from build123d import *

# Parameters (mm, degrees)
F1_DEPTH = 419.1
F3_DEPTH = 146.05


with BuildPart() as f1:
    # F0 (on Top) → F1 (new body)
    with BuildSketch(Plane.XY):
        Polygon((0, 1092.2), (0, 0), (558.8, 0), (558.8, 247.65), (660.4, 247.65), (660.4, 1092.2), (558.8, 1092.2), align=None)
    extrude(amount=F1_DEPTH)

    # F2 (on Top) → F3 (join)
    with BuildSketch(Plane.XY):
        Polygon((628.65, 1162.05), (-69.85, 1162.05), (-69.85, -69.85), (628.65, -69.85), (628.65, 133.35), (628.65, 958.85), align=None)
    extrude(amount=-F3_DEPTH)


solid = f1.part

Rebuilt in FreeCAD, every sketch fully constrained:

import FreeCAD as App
import Part
import Sketcher
from FreeCAD import Vector
Q = App.Units.Quantity

doc = App.newDocument("Part")
body = doc.addObject("PartDesign::Body", "Body")

# Sketch on XY plane
sketch1 = body.newObject("Sketcher::SketchObject", "Sketch")
sketch1.AttachmentSupport = (doc.getObject("XY_Plane"), [""])
sketch1.MapMode = "FlatFace"
sketch1.addGeometry(Part.LineSegment(Vector(0, 1092, 0), Vector(0, 0, 0)), False)
sketch1.addGeometry(Part.LineSegment(Vector(0, 0, 0), Vector(559, 0, 0)), False)
sketch1.addGeometry(Part.LineSegment(Vector(559, 0, 0), Vector(559, 248, 0)), False)
sketch1.addGeometry(Part.LineSegment(Vector(559, 248, 0), Vector(660, 248, 0)), False)
sketch1.addGeometry(Part.LineSegment(Vector(660, 248, 0), Vector(660, 1092, 0)), False)
sketch1.addGeometry(Part.LineSegment(Vector(660, 1092, 0), Vector(0, 1092, 0)), False)
sketch1.addConstraint(Sketcher.Constraint("Coincident", 0, 2, 1, 1))
sketch1.addConstraint(Sketcher.Constraint("Coincident", 1, 2, 2, 1))
sketch1.addConstraint(Sketcher.Constraint("Coincident", 2, 2, 3, 1))
sketch1.addConstraint(Sketcher.Constraint("Coincident", 3, 2, 4, 1))
sketch1.addConstraint(Sketcher.Constraint("Coincident", 4, 2, 5, 1))
sketch1.addConstraint(Sketcher.Constraint("Coincident", 5, 2, 0, 1))
sketch1.addConstraint(Sketcher.Constraint("Vertical", 0))
sketch1.addConstraint(Sketcher.Constraint("Horizontal", 1))
sketch1.addConstraint(Sketcher.Constraint("Vertical", 2))
sketch1.addConstraint(Sketcher.Constraint("Horizontal", 3))
sketch1.addConstraint(Sketcher.Constraint("Vertical", 4))
sketch1.addConstraint(Sketcher.Constraint("Horizontal", 5))
sketch1.addConstraint(Sketcher.Constraint("Coincident", 0, 2, -1, 1))
sketch1.addConstraint(Sketcher.Constraint("DistanceX", 1, 1, 1, 2, Q("22 in")))
sketch1.addConstraint(Sketcher.Constraint("DistanceX", 3, 1, 3, 2, Q("4 in")))
sketch1.addConstraint(Sketcher.Constraint("DistanceY", 0, 2, 0, 1, Q("43 in")))
sketch1.addConstraint(Sketcher.Constraint("DistanceY", 2, 1, 2, 2, Q("9.75 in")))
pad1 = body.newObject("PartDesign::Pad", "Pad")
pad1.Profile = sketch1
pad1.Length = Q("16.5 in")

# Sketch on XY plane
sketch2 = body.newObject("Sketcher::SketchObject", "Sketch001")
sketch2.AttachmentSupport = (doc.getObject("XY_Plane"), [""])
sketch2.MapMode = "FlatFace"
sketch2.addGeometry(Part.LineSegment(Vector(629, 1162, 0), Vector(-70, 1162, 0)), False)
sketch2.addGeometry(Part.LineSegment(Vector(-70, 1162, 0), Vector(-70, -70, 0)), False)
sketch2.addGeometry(Part.LineSegment(Vector(-70, -70, 0), Vector(629, -70, 0)), False)
sketch2.addGeometry(Part.LineSegment(Vector(629, -70, 0), Vector(629, 1162, 0)), False)
sketch2.addConstraint(Sketcher.Constraint("Coincident", 0, 2, 1, 1))
sketch2.addConstraint(Sketcher.Constraint("Coincident", 1, 2, 2, 1))
sketch2.addConstraint(Sketcher.Constraint("Coincident", 2, 2, 3, 1))
sketch2.addConstraint(Sketcher.Constraint("Coincident", 3, 2, 0, 1))
sketch2.addConstraint(Sketcher.Constraint("Horizontal", 0))
sketch2.addConstraint(Sketcher.Constraint("Vertical", 1))
sketch2.addConstraint(Sketcher.Constraint("Horizontal", 2))
sketch2.addConstraint(Sketcher.Constraint("Vertical", 3))
sketch2.addConstraint(Sketcher.Constraint("DistanceX", 0, 2, 0, 1, Q("27.5 in")))
sketch2.addConstraint(Sketcher.Constraint("DistanceY", 1, 2, 1, 1, Q("48.5 in")))
sketch2.addConstraint(Sketcher.Constraint("DistanceX", 0, 2, -1, 1, Q("2.75 in")))
sketch2.addConstraint(Sketcher.Constraint("DistanceY", -1, 1, 0, 2, Q("45.75 in")))
pad2 = body.newObject("PartDesign::Pad", "Pad001")
pad2.Profile = sketch2
pad2.Length = Q("5.75 in")
pad2.Reversed = True

doc.recompute()
